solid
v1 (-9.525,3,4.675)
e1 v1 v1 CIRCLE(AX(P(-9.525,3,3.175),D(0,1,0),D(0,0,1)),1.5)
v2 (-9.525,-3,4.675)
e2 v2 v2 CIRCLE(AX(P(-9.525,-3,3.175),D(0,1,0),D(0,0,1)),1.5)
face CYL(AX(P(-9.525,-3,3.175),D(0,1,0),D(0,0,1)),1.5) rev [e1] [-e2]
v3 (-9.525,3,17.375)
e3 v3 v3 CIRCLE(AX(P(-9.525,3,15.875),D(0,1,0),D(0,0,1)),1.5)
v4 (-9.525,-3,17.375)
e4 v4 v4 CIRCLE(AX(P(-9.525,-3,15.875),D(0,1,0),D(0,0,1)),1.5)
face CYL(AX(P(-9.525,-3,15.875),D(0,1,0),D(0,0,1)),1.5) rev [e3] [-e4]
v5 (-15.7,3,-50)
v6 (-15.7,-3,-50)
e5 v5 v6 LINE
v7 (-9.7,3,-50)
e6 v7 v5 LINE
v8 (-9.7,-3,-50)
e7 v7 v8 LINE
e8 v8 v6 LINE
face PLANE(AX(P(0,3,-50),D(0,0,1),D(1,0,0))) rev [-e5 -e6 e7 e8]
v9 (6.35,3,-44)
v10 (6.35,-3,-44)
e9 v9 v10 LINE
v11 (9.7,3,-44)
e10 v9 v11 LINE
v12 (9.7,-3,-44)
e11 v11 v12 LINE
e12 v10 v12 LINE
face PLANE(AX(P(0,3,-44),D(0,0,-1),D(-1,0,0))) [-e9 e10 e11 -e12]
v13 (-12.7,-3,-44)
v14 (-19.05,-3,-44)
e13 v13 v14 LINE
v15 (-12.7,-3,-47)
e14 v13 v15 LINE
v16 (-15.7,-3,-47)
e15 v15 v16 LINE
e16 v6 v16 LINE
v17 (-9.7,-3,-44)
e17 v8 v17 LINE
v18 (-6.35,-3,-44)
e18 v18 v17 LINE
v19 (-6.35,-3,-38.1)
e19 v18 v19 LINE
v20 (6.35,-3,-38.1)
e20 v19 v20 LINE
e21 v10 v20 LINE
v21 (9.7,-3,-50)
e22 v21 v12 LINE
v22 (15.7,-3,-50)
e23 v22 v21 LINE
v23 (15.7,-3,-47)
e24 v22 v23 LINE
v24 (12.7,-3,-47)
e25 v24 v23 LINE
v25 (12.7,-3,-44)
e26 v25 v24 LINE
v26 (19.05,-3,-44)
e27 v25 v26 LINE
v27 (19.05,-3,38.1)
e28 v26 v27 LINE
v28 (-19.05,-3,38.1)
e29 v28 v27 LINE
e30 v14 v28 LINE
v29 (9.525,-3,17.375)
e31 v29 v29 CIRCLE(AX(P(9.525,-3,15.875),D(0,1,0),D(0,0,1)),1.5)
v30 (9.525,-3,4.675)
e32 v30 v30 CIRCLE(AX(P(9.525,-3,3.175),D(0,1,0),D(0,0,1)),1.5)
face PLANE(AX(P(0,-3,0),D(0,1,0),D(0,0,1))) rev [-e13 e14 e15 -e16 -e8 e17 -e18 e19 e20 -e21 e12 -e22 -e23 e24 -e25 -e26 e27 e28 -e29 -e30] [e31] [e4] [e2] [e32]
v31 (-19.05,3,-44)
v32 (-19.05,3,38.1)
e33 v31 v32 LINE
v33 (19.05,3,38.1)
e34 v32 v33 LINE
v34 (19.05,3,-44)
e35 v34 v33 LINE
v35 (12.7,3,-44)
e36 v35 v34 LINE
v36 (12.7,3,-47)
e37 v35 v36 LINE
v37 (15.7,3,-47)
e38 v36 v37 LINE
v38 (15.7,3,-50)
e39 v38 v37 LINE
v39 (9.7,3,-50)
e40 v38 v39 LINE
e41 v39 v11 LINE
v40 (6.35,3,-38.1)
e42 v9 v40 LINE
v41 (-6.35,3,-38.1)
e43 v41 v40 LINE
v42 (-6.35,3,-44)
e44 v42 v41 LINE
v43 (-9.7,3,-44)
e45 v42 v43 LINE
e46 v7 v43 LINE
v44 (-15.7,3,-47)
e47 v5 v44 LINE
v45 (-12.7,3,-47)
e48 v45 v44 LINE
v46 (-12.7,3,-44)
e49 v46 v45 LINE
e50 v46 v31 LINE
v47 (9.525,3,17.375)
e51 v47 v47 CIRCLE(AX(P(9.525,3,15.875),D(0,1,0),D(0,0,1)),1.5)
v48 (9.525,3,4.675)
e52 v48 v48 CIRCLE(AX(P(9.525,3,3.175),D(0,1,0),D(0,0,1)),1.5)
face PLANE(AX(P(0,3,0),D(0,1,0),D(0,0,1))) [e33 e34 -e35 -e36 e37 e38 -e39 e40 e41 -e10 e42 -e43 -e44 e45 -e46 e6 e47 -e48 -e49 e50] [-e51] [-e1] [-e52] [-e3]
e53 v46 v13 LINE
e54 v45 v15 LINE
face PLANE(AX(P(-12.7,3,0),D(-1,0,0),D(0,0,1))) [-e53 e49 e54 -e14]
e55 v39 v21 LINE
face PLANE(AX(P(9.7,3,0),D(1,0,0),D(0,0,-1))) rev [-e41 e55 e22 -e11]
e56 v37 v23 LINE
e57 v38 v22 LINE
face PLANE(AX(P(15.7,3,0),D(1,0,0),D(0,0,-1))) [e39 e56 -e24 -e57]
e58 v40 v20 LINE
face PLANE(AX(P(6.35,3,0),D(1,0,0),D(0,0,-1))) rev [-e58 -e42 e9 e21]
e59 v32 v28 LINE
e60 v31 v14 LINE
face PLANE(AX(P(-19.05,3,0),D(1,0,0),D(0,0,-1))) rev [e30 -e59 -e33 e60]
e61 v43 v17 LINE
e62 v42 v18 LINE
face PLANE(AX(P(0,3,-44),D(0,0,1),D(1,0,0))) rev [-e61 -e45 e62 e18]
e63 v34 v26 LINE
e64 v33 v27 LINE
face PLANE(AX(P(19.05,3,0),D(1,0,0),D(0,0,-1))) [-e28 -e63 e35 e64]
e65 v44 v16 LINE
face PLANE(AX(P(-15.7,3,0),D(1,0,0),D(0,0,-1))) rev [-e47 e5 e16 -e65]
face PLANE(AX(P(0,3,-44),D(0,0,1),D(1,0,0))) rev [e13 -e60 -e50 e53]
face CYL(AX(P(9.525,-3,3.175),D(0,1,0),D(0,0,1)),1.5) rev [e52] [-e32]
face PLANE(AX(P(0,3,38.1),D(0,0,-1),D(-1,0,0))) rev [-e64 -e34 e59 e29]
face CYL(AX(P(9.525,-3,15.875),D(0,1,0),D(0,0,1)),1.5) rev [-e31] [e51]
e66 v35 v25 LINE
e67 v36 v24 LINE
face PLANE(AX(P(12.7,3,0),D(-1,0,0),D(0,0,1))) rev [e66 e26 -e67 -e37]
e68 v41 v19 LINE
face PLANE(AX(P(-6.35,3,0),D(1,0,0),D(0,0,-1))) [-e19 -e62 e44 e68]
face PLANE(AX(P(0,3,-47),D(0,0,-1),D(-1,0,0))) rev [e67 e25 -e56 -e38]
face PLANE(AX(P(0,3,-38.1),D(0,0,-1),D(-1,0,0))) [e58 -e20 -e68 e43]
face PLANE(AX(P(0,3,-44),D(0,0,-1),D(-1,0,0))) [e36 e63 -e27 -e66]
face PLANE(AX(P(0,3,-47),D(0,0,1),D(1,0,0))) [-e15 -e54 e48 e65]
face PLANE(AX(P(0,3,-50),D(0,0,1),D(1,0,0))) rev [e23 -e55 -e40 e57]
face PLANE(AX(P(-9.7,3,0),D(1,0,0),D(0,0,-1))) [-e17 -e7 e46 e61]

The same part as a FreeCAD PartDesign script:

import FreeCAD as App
import Part
import Sketcher
from FreeCAD import Vector
Q = App.Units.Quantity


def add_polygon(sketch, points):
    """Adds a closed chain of lines whose ends are joined by coincident constraints."""
    first, n = sketch.GeometryCount, len(points)
    for a, b in zip(points, points[1:] + points[:1]):
        sketch.addGeometry(Part.LineSegment(App.Vector(*a, 0), App.Vector(*b, 0)), False)
    for i in range(n):
        sketch.addConstraint(Sketcher.Constraint("Coincident", first + i, 2, first + (i + 1) % n, 1))

doc = App.newDocument("Part")
body = doc.addObject("PartDesign::Body", "Body")

sketch1 = doc.addObject("Sketcher::SketchObject", "Sketch")
body.addObject(sketch1)
sketch1.AttachmentSupport = (doc.XZ_Plane, [""])
sketch1.MapMode = "FlatFace"
add_polygon(sketch1, [(6.35, -44), (6.35, -38.1), (-6.35, -38.1), (-6.35, -44), (-9.7, -44), (-9.7, -50), (-15.7, -50), (-15.7, -47), (-12.7, -47), (-12.7, -44), (-19.05, -44), (-19.05, 38.1), (19.05, 38.1), (19.05, -44), (12.7, -44), (12.7, -47), (15.7, -47), (15.7, -50), (9.7, -50), (9.7, -44)])
sketch1.addConstraint([
    Sketcher.Constraint("Vertical", 0),
    Sketcher.Constraint("Horizontal", 1),
    Sketcher.Constraint("Vertical", 2),
    Sketcher.Constraint("Horizontal", 3),
    Sketcher.Constraint("Vertical", 4),
    Sketcher.Constraint("Horizontal", 5),
    Sketcher.Constraint("Vertical", 6),
    Sketcher.Constraint("Horizontal", 7),
    Sketcher.Constraint("Vertical", 8),
    Sketcher.Constraint("Horizontal", 9),
    Sketcher.Constraint("Vertical", 10),
    Sketcher.Constraint("Horizontal", 11),
    Sketcher.Constraint("Vertical", 12),
    Sketcher.Constraint("Horizontal", 13),
    Sketcher.Constraint("Vertical", 14),
    Sketcher.Constraint("Horizontal", 15),
    Sketcher.Constraint("Vertical", 16),
    Sketcher.Constraint("Horizontal", 17),
    Sketcher.Constraint("Vertical", 18),
    Sketcher.Constraint("Horizontal", 19),
    Sketcher.Constraint("Symmetric", 9, 2, 12, 2, -2),
    Sketcher.Constraint("Symmetric", 7, 2, 14, 2, -2),
    Sketcher.Constraint("Symmetric", 5, 2, 16, 2, -2),
    Sketcher.Constraint("Symmetric", 3, 2, 18, 2, -2),
    Sketcher.Constraint("Horizontal", 3, 2, 8, 2),
    Sketcher.Constraint("Equal", 3, 19),
    Sketcher.Constraint("Equal", 17, 4),
    Sketcher.Constraint("Equal", 15, 6),
    Sketcher.Constraint("Equal", 6, 8),
    Sketcher.Constraint("DistanceX", 5, 2, 5, 1, Q("6 mm")),
    Sketcher.Constraint("DistanceX", 1, 2, 1, 1, Q("12.7 mm")),
    Sketcher.Constraint("DistanceX", 11, 1, 11, 2, Q("38.1 mm")),
    Sketcher.Constraint("DistanceY", 0, 1, 0, 2, Q("5.9 mm")),
    Sketcher.Constraint("DistanceY", 10, 1, 10, 2, Q("82.1 mm")),
    Sketcher.Constraint("DistanceY", 2, 2, -1, 1, Q("44 mm")),
    Sketcher.Constraint("DistanceX", 3, 2, 3, 1, Q("3.35 mm")),
])
pad1 = doc.addObject("PartDesign::Pad", "Pad")
body.addObject(pad1)
pad1.Profile = sketch1
pad1.Length = 6
pad1.Midplane = True

sketch2 = doc.addObject("Sketcher::SketchObject", "Sketch001")
body.addObject(sketch2)
sketch2.AttachmentSupport = (doc.XZ_Plane, [""])
sketch2.MapMode = "FlatFace"
sketch2.AttachmentOffset = App.Placement(Vector(0, 0, -3), App.Rotation())
sketch2.addGeometry([
    Part.Circle(Vector(-9.525, 3.175, 0), Vector(0, 0, 1), 1.5),
    Part.Circle(Vector(9.525, 3.175, 0), Vector(0, 0, 1), 1.5),
    Part.Circle(Vector(9.525, 15.875, 0), Vector(0, 0, 1), 1.5),
    Part.Circle(Vector(-9.525, 15.875, 0), Vector(0, 0, 1), 1.5),
], False)
sketch2.addConstraint([
    Sketcher.Constraint("Equal", 0, 1),
    Sketcher.Constraint("Equal", 1, 2),
    Sketcher.Constraint("Equal", 2, 3),
    Sketcher.Constraint("Symmetric", 0, 3, 1, 3, -2),
    Sketcher.Constraint("Symmetric", 2, 3, 3, 3, -2),
    Sketcher.Constraint("Vertical", 1, 3, 2, 3),
    Sketcher.Constraint("Diameter", 0, Q("3 mm")),
    Sketcher.Constraint("DistanceY", 1, 3, 2, 3, Q("12.7 mm")),
    Sketcher.Constraint("DistanceX", 0, 3, 1, 3, Q("19.05 mm")),
    Sketcher.Constraint("DistanceY", -1, 1, 0, 3, Q("3.175 mm")),
])
pocket1 = doc.addObject("PartDesign::Pocket", "Pocket")
body.addObject(pocket1)
pocket1.Profile = sketch2
pocket1.Type = "ThroughAll"
pocket1.Midplane = True

doc.recompute()
